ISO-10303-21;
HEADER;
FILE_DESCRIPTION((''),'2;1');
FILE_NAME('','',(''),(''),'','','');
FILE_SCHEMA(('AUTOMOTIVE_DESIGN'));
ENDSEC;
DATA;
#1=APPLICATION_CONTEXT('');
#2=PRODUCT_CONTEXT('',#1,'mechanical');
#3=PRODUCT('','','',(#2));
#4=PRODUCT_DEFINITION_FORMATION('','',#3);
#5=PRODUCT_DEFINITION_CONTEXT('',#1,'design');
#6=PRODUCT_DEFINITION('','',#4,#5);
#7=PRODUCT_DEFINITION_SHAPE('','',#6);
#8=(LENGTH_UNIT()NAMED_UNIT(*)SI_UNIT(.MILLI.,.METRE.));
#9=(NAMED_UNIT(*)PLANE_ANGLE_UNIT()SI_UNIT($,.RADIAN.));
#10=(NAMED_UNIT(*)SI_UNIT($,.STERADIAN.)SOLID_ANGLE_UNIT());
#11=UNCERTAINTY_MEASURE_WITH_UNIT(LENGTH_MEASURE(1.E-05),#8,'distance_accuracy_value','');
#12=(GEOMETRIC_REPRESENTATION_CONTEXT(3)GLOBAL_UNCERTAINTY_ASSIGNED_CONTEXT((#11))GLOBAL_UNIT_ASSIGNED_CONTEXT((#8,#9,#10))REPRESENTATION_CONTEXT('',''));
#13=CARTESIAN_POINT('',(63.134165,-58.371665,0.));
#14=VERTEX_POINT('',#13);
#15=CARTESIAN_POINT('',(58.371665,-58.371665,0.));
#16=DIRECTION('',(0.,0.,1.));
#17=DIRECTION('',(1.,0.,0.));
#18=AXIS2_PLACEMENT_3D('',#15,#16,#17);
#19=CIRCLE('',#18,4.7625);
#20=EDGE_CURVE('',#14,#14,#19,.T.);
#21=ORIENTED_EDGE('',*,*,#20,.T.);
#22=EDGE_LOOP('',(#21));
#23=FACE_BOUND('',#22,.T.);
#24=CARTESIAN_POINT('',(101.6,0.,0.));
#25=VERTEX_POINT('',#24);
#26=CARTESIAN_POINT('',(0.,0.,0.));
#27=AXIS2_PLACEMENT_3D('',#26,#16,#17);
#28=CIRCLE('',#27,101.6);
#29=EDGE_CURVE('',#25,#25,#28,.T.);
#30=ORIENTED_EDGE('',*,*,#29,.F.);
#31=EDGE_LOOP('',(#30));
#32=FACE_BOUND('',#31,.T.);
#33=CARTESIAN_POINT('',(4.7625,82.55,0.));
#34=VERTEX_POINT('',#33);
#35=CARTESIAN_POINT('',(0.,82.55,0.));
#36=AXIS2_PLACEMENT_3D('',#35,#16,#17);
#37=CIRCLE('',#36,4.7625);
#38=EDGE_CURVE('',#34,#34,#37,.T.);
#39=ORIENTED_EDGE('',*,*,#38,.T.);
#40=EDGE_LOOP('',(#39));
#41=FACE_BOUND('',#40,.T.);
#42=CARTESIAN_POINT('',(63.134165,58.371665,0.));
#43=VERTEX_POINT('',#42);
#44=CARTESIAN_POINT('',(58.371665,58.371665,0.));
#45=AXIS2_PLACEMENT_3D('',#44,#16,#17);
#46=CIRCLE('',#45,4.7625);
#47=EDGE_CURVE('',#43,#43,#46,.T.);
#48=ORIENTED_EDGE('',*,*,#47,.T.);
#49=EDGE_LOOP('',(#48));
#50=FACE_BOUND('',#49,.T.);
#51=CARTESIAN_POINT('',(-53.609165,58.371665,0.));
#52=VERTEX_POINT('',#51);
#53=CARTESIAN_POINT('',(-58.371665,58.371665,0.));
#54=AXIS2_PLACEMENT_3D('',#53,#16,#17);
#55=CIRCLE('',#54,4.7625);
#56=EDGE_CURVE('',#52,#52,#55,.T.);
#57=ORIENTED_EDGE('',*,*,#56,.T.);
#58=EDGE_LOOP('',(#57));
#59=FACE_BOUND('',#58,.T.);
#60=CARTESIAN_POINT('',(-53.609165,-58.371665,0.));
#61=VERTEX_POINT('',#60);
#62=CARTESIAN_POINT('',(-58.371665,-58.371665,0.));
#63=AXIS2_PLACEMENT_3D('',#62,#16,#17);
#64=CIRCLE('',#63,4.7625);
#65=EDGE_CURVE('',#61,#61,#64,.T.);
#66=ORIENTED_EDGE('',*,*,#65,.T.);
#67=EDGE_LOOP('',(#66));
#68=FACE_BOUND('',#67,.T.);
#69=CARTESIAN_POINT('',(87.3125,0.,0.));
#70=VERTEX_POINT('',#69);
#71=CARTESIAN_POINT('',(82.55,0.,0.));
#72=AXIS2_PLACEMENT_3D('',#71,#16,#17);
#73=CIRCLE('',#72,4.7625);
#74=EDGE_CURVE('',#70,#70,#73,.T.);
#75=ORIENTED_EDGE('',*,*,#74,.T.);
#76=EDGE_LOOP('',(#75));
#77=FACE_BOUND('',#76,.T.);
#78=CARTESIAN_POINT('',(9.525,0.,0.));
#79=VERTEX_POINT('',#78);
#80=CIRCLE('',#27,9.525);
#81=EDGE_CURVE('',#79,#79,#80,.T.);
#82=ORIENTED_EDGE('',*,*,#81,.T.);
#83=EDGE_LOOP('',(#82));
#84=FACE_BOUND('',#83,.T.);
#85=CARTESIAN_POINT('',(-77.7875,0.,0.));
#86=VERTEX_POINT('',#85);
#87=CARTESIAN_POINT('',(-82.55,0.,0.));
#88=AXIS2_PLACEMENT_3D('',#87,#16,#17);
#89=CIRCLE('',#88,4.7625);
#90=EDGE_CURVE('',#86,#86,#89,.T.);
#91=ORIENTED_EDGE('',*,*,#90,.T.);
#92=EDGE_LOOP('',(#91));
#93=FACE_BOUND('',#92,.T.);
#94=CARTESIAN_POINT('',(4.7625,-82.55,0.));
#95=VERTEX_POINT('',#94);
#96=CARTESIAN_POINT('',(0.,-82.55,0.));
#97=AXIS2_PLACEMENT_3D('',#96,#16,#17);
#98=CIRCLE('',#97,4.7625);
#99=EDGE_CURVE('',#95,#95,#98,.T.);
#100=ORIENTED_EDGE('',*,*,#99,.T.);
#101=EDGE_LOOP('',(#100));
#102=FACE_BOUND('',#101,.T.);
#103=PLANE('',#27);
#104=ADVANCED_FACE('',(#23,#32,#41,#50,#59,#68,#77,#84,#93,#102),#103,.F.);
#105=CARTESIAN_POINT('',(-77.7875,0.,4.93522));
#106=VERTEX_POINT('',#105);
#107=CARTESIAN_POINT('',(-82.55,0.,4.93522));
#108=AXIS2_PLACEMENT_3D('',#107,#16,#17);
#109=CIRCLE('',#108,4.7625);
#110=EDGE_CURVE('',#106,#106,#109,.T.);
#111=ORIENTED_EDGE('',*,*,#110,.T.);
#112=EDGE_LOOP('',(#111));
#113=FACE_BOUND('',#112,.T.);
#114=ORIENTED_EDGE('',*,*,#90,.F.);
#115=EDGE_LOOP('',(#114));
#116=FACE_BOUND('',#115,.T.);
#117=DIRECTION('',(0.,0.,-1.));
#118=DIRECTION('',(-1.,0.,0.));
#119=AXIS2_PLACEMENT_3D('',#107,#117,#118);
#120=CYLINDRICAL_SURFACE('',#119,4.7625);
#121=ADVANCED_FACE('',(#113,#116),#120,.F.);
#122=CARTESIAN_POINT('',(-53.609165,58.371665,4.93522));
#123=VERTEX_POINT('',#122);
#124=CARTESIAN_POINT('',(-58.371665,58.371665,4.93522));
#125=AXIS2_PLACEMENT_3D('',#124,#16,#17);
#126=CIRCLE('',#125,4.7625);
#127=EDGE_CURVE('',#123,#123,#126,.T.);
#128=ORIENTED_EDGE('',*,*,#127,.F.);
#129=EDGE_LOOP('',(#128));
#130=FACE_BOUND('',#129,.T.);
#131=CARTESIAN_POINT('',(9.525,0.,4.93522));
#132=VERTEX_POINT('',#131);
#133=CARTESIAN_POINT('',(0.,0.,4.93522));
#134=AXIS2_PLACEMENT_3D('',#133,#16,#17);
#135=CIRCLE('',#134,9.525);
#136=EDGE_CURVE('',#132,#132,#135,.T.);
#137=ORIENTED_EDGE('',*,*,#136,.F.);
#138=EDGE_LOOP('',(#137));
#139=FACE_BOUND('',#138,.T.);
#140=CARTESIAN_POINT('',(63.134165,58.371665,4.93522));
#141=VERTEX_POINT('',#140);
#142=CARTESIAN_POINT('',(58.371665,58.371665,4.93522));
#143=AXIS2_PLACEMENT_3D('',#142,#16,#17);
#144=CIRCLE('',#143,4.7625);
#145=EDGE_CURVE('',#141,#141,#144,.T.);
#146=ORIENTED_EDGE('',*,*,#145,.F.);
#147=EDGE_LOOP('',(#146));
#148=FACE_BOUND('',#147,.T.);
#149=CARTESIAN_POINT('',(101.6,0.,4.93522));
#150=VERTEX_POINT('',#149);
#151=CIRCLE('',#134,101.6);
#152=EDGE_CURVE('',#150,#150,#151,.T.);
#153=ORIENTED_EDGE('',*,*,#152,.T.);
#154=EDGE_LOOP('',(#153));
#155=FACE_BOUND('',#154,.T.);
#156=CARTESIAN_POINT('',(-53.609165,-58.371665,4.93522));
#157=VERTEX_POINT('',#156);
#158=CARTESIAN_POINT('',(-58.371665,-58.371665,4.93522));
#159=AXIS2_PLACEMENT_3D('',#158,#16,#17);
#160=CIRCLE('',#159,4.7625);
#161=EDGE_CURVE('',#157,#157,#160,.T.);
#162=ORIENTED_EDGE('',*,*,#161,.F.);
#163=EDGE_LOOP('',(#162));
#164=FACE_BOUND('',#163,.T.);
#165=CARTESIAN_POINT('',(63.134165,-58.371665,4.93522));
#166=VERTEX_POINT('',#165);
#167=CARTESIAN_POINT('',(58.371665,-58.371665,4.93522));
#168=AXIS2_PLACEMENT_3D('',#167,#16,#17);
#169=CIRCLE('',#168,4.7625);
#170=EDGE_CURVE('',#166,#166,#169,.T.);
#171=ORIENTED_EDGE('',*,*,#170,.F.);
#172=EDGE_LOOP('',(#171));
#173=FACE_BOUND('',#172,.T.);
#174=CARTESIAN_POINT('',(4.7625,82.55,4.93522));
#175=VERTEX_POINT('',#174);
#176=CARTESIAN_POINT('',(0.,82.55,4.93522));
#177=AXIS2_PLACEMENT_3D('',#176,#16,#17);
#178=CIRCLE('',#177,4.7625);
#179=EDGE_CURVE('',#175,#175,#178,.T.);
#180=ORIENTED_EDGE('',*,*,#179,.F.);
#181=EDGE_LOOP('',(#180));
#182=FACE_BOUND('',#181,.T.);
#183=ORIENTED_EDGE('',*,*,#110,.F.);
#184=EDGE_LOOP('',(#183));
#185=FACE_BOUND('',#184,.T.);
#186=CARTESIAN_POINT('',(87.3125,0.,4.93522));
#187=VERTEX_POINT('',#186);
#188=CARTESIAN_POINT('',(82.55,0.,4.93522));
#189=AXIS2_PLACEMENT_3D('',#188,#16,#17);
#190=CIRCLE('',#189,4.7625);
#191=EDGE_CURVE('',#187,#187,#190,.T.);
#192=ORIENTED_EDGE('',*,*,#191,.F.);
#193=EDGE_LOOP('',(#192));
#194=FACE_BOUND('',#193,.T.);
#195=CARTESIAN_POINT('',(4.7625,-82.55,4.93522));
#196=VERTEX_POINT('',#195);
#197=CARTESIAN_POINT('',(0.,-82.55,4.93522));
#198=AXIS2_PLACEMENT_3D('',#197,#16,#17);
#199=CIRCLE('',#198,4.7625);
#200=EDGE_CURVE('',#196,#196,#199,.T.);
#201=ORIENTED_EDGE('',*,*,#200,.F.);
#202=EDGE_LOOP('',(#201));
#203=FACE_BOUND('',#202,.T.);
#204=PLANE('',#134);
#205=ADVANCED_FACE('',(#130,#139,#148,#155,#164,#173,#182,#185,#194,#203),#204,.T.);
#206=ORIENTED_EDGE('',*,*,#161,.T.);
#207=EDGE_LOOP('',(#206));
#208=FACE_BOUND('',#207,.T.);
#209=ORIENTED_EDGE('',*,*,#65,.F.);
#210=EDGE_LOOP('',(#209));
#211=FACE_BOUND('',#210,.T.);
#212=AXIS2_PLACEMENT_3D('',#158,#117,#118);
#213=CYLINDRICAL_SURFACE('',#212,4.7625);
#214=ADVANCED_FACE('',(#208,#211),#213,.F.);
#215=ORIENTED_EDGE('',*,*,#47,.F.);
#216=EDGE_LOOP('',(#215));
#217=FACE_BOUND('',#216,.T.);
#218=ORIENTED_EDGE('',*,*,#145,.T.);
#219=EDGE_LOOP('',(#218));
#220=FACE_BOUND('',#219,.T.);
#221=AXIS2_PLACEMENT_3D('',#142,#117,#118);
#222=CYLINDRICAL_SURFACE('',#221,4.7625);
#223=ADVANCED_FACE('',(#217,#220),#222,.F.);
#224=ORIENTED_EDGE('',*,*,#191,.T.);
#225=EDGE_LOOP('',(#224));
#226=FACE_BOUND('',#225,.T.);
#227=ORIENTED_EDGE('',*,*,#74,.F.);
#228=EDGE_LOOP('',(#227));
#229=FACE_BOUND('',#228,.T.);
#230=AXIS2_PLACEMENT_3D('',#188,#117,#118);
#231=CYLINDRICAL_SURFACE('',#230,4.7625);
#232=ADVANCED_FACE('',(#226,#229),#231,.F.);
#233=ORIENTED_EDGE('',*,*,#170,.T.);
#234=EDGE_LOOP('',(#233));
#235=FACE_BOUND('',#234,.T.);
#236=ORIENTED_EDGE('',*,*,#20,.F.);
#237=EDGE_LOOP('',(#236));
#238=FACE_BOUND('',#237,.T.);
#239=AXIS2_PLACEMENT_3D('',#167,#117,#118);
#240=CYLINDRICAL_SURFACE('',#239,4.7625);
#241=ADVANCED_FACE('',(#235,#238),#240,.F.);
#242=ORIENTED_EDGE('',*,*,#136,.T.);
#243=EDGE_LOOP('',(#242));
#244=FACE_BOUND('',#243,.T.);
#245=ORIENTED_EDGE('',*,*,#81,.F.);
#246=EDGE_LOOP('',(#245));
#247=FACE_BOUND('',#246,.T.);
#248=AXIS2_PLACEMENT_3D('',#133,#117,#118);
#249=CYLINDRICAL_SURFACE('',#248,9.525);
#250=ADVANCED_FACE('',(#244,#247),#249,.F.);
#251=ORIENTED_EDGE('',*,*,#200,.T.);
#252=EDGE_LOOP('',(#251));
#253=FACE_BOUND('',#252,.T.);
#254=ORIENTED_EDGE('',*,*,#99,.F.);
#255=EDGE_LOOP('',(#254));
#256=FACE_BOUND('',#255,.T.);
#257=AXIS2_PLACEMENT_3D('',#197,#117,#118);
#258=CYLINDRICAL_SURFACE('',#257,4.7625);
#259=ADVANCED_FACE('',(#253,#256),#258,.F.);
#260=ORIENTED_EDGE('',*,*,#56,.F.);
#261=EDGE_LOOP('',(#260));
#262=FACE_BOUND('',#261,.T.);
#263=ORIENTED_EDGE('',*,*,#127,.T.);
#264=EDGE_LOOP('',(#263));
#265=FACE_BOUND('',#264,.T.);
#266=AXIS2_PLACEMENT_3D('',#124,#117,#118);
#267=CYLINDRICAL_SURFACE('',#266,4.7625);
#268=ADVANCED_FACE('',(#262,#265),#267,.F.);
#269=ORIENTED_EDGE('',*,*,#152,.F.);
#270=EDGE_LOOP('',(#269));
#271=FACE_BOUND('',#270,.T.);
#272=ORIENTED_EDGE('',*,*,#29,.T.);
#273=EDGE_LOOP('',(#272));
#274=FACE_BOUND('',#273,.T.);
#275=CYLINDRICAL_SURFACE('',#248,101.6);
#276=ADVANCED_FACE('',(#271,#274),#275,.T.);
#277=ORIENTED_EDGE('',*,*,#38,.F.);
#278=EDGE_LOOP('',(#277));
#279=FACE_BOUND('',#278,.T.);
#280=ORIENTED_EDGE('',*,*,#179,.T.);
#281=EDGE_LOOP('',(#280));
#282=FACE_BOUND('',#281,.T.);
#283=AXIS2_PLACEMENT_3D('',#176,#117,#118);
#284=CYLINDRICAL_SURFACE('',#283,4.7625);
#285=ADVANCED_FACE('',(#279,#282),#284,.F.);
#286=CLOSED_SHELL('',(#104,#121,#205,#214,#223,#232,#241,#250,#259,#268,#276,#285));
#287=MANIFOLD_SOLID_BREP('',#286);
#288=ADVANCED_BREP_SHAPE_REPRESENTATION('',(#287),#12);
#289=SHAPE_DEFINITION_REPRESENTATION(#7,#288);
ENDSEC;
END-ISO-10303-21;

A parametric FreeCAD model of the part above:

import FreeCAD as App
import Part
import Sketcher
from FreeCAD import Vector
Q = App.Units.Quantity

doc = App.newDocument("Part")
body = doc.addObject("PartDesign::Body", "Body")

# Sketch on XY plane
sketch1 = body.newObject("Sketcher::SketchObject", "Sketch")
sketch1.AttachmentSupport = (doc.getObject("XY_Plane"), [""])
sketch1.MapMode = "FlatFace"
sketch1.addGeometry([
    Part.Circle(Vector(0, 0, 0), Vector(0, 0, 1), 101.6),  # 0
    Part.Circle(Vector(-58.4, -58.4, 0), Vector(0, 0, 1), 4.8),  # 1
    Part.Circle(Vector(0, -82.5, 0), Vector(0, 0, 1), 4.8),  # 2
    Part.Circle(Vector(58.4, -58.4, 0), Vector(0, 0, 1), 4.8),  # 3
    Part.Circle(Vector(-82.5, 0, 0), Vector(0, 0, 1), 4.8),  # 4
    Part.Circle(Vector(-58.4, 58.4, 0), Vector(0, 0, 1), 4.8),  # 5
    Part.Circle(Vector(0, 0, 0), Vector(0, 0, 1), 9.5),  # 6
    Part.Circle(Vector(82.5, 0, 0), Vector(0, 0, 1), 4.8),  # 7
    Part.Circle(Vector(0, 82.5, 0), Vector(0, 0, 1), 4.8),  # 8
    Part.Circle(Vector(58.4, 58.4, 0), Vector(0, 0, 1), 4.8),  # 9
], False)
sketch1.addConstraint([
    Sketcher.Constraint("Coincident", 0, 3, -1, 1),
    Sketcher.Constraint("Coincident", 6, 3, -1, 1),
    Sketcher.Constraint("Equal", 1, 2),
    Sketcher.Constraint("Equal", 2, 3),
    Sketcher.Constraint("Equal", 3, 4),
    Sketcher.Constraint("Equal", 4, 5),
    Sketcher.Constraint("Equal", 5, 7),
    Sketcher.Constraint("Equal", 7, 8),
    Sketcher.Constraint("Equal", 8, 9),
    Sketcher.Constraint("Symmetric", 3, 3, 5, 3, -1, 1),
    Sketcher.Constraint("Symmetric", 4, 3, 7, 3, -1, 1),
    Sketcher.Constraint("Symmetric", 2, 3, 8, 3, -1, 1),
    Sketcher.Constraint("Symmetric", 1, 3, 9, 3, -1, 1),
    Sketcher.Constraint("Symmetric", 1, 3, 3, 3, -2),
    Sketcher.Constraint("PointOnObject", 2, 3, -2),
    Sketcher.Constraint("PointOnObject", 4, 3, -1),
    Sketcher.Constraint("Diameter", 0, Q("8 in")),
    Sketcher.Constraint("Diameter", 6, Q("0.75 in")),
    Sketcher.Constraint("Diameter", 1, Q("0.375 in")),
    Sketcher.Constraint("DistanceY", 2, 3, -1, 1, Q("3.25 in")),
    Sketcher.Constraint("DistanceX", 4, 3, -1, 1, Q("3.25 in")),
    Sketcher.Constraint("DistanceX", 1, 3, 3, 3, Q("116.74333 mm")),
    Sketcher.Constraint("DistanceY", 1, 3, 5, 3, Q("116.74333 mm")),
])
pad1 = body.newObject("PartDesign::Pad", "Pad")
pad1.Profile = sketch1
pad1.Length = Q("0.1943 in")

doc.recompute()
